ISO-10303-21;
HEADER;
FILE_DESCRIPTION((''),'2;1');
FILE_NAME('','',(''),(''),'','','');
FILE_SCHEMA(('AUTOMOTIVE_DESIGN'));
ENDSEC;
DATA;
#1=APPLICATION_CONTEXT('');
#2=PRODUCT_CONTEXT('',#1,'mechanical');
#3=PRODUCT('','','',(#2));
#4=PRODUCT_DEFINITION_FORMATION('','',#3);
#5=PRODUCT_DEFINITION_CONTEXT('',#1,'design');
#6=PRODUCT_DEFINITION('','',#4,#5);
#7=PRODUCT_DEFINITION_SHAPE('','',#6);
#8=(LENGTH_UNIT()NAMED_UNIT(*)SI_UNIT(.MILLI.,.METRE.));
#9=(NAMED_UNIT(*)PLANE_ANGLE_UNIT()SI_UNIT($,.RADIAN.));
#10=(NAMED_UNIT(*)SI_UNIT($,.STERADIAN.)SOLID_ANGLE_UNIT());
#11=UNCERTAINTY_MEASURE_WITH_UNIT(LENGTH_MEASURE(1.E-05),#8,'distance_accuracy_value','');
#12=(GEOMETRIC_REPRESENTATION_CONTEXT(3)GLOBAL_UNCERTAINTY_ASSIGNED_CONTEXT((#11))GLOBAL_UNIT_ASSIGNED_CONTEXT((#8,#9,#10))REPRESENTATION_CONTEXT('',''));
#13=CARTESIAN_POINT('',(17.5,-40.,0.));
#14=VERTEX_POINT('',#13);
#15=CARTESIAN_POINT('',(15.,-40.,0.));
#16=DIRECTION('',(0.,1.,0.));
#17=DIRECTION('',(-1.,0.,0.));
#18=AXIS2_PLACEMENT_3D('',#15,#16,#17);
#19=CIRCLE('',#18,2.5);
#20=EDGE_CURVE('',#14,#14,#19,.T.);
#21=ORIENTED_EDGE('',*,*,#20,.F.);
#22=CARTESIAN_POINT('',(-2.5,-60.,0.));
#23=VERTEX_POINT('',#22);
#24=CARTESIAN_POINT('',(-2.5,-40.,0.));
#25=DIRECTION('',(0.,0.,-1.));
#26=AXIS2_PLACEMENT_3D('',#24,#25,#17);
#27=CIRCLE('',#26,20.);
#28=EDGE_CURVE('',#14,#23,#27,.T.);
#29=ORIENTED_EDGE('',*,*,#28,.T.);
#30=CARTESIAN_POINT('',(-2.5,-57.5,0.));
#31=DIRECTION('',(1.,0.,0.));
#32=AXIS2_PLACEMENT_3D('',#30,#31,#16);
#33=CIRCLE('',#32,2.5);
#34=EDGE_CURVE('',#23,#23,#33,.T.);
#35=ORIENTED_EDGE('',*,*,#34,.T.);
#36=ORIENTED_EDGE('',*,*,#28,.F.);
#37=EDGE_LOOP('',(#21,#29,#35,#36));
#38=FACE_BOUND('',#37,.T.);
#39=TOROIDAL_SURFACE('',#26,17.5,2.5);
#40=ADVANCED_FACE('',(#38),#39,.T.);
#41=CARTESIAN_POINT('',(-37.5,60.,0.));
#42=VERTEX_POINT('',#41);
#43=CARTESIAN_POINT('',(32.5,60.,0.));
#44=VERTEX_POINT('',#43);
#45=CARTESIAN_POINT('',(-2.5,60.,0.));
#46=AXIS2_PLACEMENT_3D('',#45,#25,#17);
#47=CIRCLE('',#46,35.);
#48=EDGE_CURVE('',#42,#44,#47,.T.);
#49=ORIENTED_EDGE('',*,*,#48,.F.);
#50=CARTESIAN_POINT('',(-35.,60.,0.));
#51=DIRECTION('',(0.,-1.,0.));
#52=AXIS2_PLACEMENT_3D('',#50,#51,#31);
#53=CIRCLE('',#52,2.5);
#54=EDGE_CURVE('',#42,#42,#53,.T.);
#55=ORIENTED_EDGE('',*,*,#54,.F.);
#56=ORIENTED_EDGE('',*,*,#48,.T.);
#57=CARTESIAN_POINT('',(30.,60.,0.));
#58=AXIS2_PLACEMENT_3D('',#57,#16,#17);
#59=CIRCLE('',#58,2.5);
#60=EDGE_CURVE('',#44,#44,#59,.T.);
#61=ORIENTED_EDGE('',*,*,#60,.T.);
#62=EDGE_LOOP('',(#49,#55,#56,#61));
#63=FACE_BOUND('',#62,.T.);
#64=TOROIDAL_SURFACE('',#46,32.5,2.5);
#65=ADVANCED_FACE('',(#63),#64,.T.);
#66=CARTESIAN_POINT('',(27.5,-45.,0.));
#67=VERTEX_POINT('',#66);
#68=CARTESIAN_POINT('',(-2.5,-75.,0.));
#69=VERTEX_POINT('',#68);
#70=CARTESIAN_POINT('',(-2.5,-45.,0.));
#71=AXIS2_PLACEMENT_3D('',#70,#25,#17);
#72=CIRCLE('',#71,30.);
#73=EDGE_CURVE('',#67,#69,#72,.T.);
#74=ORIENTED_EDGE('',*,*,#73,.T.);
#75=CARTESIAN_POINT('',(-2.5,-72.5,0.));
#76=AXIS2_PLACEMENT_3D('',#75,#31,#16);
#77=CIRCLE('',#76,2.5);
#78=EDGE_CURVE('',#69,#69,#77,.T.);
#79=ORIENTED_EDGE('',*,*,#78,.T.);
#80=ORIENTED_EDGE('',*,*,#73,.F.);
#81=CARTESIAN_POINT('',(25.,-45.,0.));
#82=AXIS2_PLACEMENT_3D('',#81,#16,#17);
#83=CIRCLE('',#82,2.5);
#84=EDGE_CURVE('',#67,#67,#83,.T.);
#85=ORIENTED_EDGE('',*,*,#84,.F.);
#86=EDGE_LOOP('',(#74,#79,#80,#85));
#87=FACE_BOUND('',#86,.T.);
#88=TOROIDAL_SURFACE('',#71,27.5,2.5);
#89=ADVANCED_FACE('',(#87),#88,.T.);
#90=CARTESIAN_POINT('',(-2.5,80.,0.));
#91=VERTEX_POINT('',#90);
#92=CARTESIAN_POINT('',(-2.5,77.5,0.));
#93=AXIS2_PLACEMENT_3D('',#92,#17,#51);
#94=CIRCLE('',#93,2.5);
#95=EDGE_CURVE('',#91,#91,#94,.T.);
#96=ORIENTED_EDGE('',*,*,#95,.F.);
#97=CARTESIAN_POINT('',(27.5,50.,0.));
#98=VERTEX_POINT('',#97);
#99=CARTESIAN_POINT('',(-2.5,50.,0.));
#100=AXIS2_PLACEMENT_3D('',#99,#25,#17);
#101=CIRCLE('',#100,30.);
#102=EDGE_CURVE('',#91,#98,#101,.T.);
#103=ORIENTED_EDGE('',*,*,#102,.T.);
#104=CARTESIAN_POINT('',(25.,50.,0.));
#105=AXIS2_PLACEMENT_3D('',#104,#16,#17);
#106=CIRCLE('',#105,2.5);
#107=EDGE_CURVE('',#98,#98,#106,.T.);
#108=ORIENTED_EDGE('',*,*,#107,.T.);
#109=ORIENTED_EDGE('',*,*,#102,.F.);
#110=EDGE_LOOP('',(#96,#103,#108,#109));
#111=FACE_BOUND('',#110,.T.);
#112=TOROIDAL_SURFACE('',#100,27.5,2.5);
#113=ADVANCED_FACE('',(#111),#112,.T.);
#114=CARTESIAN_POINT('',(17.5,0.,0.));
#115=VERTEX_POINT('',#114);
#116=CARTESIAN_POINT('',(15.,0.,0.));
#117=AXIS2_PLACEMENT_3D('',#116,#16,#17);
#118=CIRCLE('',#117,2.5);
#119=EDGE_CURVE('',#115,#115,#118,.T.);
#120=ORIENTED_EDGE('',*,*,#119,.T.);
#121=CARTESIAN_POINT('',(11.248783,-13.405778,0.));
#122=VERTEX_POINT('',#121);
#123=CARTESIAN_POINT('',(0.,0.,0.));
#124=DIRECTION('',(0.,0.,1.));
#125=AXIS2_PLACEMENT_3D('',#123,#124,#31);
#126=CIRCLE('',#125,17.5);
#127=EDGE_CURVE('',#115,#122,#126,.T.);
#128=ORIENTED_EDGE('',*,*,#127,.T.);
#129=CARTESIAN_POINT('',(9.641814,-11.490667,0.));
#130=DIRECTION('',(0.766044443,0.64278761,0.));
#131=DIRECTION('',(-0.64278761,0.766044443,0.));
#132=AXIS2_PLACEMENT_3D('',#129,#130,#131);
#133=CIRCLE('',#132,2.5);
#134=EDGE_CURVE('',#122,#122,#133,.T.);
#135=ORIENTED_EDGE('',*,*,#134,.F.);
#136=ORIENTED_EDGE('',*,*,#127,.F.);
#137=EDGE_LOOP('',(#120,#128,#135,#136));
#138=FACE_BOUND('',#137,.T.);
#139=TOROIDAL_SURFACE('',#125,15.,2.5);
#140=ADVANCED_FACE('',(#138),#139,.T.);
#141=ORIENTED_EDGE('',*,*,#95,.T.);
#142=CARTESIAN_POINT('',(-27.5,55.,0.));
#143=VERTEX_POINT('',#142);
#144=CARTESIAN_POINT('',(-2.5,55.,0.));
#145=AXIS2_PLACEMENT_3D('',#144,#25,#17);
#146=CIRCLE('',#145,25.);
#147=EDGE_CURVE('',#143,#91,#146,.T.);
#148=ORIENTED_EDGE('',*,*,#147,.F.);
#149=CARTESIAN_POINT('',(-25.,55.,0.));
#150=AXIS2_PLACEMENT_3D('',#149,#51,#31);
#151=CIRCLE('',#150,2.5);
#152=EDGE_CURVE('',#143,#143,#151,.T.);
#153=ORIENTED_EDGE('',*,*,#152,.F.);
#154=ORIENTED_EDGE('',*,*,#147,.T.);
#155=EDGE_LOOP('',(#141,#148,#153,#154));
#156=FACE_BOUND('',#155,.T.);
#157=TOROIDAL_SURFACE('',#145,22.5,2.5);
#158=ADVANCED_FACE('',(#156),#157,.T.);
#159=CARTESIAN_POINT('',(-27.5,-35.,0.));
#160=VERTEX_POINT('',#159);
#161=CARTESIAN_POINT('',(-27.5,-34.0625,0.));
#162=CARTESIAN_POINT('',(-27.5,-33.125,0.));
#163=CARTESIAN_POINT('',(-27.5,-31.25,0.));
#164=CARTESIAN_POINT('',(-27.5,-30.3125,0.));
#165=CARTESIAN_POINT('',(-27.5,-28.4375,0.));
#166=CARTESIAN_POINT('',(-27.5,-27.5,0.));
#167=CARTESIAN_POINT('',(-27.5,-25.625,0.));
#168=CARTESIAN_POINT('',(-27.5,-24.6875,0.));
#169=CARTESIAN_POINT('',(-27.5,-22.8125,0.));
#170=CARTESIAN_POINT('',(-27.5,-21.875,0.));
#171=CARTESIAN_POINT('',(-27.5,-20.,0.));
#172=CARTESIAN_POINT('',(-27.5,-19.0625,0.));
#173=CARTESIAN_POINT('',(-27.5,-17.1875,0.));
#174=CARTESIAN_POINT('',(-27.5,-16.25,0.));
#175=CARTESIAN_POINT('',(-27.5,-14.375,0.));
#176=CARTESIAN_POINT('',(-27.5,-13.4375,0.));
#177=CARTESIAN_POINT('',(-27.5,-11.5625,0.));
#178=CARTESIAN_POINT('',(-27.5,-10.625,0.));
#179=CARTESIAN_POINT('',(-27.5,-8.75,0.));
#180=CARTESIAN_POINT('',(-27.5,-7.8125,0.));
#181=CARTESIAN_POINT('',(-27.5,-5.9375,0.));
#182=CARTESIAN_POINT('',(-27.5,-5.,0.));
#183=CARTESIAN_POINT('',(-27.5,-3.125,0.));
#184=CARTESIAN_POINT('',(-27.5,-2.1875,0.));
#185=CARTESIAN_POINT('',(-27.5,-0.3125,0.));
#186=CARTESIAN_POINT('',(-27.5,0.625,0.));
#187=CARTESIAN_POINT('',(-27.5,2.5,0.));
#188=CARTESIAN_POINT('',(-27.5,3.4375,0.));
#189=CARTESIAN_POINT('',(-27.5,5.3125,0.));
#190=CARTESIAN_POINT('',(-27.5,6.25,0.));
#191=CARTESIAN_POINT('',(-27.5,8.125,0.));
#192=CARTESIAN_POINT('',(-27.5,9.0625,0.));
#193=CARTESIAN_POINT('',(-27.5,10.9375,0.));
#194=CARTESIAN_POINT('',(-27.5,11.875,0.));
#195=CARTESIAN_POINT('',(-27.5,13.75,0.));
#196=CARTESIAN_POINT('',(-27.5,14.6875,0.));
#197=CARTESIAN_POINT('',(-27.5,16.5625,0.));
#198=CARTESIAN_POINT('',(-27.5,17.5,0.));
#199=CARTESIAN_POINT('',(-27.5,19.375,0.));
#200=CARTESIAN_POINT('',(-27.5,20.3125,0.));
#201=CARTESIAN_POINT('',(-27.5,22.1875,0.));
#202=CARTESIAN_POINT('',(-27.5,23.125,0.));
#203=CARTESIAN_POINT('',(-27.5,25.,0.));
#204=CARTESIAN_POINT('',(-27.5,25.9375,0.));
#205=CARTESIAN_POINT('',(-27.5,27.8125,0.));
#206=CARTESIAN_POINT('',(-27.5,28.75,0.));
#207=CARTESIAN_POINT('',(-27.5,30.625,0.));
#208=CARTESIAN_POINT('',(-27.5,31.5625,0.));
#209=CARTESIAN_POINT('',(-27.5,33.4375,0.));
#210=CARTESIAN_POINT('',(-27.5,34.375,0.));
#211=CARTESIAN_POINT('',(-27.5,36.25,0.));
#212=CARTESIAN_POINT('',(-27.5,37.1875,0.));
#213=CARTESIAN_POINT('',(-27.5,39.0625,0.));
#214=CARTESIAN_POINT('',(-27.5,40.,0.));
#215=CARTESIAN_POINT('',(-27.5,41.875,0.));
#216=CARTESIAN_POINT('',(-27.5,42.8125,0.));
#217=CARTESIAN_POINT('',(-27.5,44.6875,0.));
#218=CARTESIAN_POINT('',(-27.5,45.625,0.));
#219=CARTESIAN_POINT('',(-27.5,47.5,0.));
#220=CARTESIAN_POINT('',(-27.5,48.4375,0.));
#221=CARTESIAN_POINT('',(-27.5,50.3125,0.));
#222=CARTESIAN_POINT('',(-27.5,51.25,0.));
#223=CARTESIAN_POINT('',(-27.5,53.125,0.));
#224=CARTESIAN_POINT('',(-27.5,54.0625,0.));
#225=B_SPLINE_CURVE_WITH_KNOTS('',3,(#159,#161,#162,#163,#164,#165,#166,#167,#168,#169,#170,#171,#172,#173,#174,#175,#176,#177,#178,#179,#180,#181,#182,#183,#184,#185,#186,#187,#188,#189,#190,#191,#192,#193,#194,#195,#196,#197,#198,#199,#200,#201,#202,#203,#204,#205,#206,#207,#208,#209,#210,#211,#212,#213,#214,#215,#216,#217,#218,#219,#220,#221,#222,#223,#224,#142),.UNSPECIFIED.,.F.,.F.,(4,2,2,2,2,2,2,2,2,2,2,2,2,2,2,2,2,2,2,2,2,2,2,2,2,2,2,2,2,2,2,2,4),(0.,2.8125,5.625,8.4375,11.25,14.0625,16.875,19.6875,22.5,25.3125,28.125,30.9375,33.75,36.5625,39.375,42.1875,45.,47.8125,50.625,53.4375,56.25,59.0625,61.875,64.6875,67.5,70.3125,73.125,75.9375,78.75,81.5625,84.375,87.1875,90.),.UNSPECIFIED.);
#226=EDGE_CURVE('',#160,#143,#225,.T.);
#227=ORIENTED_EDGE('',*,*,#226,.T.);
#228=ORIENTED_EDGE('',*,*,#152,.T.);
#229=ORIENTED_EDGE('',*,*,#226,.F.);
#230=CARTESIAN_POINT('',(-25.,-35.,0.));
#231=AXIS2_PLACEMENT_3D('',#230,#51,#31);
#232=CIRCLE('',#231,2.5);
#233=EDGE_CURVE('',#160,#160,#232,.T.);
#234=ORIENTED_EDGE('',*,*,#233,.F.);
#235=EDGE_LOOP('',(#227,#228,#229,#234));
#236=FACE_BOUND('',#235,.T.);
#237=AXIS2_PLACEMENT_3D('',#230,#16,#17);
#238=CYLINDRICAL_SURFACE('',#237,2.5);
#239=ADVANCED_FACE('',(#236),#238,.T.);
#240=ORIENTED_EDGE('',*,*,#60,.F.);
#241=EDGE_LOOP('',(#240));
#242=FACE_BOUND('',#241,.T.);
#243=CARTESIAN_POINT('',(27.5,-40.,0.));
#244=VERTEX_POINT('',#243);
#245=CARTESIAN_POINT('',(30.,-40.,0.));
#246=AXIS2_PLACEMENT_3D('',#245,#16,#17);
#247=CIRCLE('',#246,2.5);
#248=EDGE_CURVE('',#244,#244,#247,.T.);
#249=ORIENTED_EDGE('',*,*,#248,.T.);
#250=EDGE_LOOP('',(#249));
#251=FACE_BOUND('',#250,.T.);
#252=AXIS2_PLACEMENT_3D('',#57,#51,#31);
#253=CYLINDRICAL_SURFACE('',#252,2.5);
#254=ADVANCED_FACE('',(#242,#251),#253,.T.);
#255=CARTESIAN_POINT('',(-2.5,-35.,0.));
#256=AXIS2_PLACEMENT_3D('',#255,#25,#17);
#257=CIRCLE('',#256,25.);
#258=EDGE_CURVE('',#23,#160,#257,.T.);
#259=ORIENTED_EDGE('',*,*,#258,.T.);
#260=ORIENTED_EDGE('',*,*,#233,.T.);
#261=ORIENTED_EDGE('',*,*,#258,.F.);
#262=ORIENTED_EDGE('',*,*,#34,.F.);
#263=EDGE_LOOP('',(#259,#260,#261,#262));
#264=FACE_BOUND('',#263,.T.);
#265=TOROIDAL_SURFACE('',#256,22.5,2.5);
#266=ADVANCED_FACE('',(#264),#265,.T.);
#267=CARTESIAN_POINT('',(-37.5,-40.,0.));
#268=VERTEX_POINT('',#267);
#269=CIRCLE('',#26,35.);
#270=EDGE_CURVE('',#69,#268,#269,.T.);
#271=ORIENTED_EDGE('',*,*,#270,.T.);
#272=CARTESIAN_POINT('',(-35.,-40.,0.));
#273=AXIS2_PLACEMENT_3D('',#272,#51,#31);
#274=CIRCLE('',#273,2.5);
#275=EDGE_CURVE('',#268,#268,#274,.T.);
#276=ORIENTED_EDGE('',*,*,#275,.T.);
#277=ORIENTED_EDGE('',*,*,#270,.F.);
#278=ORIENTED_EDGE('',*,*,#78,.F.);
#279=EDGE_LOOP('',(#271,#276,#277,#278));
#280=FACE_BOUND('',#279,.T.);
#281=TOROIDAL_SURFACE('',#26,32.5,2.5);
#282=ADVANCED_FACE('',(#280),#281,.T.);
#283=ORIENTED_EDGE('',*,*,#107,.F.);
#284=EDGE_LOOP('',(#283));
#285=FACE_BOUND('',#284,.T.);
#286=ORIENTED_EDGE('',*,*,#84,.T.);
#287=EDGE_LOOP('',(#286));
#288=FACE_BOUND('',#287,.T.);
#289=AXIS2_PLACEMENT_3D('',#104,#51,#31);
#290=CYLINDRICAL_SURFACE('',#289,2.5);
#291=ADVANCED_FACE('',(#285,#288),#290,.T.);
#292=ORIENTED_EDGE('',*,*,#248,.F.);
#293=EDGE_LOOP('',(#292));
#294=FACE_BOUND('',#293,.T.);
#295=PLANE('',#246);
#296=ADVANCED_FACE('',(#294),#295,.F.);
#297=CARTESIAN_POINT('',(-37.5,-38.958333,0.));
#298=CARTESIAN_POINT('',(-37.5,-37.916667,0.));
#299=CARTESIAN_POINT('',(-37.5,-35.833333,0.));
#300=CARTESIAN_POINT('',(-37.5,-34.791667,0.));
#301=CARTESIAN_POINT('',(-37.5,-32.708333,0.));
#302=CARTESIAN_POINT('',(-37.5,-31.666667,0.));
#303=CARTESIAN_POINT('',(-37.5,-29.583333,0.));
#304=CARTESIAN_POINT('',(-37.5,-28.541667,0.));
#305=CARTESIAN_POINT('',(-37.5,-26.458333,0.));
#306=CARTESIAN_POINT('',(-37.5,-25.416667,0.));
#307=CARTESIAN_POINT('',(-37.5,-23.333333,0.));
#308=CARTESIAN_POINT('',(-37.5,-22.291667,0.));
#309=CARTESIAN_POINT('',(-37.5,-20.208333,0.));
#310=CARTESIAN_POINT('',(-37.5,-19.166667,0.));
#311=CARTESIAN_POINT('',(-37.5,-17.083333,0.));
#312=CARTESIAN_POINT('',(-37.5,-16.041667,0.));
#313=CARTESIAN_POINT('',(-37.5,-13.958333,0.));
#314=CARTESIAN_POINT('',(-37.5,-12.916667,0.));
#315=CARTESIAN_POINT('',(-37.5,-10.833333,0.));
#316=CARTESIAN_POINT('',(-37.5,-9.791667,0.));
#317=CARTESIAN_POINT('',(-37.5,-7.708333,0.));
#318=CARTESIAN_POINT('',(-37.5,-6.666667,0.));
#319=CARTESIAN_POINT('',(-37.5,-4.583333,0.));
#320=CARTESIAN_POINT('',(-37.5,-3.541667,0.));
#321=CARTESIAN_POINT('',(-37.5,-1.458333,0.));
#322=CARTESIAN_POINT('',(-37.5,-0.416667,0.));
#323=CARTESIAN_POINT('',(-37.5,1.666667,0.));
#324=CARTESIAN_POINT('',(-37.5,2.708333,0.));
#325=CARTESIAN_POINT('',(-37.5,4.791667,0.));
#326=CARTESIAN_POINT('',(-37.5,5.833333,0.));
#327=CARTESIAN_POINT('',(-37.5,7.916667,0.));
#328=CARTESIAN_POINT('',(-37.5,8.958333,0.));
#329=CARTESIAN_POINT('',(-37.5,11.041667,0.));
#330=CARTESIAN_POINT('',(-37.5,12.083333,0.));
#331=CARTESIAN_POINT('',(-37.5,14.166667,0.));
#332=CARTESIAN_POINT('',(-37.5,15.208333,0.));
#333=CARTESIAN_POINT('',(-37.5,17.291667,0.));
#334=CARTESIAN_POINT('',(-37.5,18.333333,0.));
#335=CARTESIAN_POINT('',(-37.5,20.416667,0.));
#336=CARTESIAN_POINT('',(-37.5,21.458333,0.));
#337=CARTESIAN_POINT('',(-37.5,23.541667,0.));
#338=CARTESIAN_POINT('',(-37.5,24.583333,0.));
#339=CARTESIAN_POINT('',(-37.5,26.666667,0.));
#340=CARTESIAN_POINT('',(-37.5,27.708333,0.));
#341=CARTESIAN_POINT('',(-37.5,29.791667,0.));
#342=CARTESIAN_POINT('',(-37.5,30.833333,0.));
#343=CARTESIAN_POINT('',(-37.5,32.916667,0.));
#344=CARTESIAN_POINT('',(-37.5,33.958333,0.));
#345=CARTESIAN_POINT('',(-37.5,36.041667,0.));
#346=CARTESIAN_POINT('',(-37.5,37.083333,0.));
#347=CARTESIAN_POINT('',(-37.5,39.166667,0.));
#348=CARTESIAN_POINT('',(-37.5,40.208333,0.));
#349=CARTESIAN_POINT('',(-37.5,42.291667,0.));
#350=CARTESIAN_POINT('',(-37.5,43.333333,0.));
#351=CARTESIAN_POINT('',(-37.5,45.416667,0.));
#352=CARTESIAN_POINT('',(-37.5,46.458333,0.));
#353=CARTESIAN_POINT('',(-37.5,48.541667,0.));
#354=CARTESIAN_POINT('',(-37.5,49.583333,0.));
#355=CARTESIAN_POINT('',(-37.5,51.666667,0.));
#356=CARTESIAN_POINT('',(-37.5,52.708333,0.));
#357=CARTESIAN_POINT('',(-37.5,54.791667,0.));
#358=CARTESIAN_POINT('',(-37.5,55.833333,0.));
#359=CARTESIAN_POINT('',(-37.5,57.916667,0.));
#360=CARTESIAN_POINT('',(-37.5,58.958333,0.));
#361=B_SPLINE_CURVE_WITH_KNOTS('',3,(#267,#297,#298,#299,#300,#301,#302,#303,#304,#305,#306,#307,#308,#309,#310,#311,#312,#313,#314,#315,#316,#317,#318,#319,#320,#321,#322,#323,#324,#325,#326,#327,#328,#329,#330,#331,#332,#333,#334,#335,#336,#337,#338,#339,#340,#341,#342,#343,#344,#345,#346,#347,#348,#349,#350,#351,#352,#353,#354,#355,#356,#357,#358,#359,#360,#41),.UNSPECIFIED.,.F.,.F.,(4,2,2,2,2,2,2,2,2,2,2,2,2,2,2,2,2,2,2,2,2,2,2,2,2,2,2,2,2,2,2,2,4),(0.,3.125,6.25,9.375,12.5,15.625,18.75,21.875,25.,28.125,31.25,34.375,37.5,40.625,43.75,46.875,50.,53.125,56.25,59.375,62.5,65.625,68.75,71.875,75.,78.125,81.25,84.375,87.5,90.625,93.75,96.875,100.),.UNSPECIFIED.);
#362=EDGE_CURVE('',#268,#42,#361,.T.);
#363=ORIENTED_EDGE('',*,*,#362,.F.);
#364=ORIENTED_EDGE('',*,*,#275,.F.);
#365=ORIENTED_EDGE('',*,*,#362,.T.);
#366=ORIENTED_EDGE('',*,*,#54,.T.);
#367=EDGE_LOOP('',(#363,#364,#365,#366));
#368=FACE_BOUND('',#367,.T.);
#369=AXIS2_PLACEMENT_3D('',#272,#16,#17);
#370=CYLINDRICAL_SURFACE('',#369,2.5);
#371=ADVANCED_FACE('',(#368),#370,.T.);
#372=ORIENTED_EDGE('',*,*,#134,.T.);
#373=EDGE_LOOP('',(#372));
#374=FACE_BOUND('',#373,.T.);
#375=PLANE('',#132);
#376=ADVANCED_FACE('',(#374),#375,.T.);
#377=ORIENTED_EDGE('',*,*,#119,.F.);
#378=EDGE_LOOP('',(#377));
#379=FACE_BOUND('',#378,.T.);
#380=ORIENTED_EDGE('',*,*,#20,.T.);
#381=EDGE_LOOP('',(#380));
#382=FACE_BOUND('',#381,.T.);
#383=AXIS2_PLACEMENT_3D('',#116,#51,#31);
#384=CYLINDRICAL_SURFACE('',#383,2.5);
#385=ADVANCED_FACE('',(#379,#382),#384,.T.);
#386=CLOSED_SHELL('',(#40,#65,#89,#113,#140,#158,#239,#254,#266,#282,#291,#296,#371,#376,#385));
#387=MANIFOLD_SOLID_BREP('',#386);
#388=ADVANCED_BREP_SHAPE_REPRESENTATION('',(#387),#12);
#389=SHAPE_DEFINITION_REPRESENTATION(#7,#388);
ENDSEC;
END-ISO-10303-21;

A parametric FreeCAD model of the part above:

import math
import FreeCAD as App
import Part
import Sketcher

V = App.Vector

doc = App.newDocument("Part")
params = doc.addObject("Spreadsheet::Sheet", "Params")
for row, (alias, value) in enumerate([
    ("sketch1_diameter", "5 mm"),
    ("sketch2_radius", "15 mm"),
    ("sketch2_radius2", "32.5 mm"),
    ("sketch2_radius3", "27.5 mm"),
    ("sketch2_radius4", "22.5 mm"),
    ("sketch2_radius5", "17.5 mm"),
], start=1):
    params.set(f"A{row}", alias)
    params.set(f"B{row}", "=" + value)
    params.setAlias(f"B{row}", alias)

body = doc.addObject("PartDesign::Body", "Body")

sketch1 = body.newObject("Sketcher::SketchObject", "Sketch")
sketch1.Placement = App.Placement(V(9.641814, -11.490667, 0), App.Rotation(V(0, 0, -1), V(-0.64278761, 0.766044443, 0), V(0.766044443, 0.64278761, 0), "ZXY"))
sketch1.addGeometry(Part.Circle(V(0, 0, 0), V(0, 0, 1), 2.5), False)
sketch1.addConstraint(Sketcher.Constraint("Coincident", 0, 3, -1, 1))
sketch1.addConstraint(Sketcher.Constraint("Diameter", 0, 5.0))
sketch1.setExpression("Constraints[1]", "Params.sketch1_diameter")

sketch2 = body.newObject("Sketcher::SketchObject", "Sketch001")
sketch2.AttachmentSupport = (doc.getObject("XY_Plane"), [""])
sketch2.MapMode = "FlatFace"
sketch2.addGeometry(Part.LineSegment(V(30, -40, 0), V(30, 60, 0)), False)
sketch2.addGeometry(Part.ArcOfCircle(Part.Circle(V(-2, 60, 0), V(0, 0, 1), 32), math.radians(0), math.radians(180)), False)
sketch2.addGeometry(Part.LineSegment(V(-35, 60, 0), V(-35, -40, 0)), False)
sketch2.addGeometry(Part.ArcOfCircle(Part.Circle(V(-3, -40, 0), V(0, 0, 1), 32), math.radians(180), math.radians(270)), False)
sketch2.addGeometry(Part.ArcOfCircle(Part.Circle(V(-2, -45, 0), V(0, 0, 1), 27), math.radians(-90), math.radians(0)), False)
sketch2.addGeometry(Part.LineSegment(V(25, -45, 0), V(25, 50, 0)), False)
sketch2.addGeometry(Part.ArcOfCircle(Part.Circle(V(-2, 50, 0), V(0, 0, 1), 27), math.radians(0), math.radians(90)), False)
sketch2.addGeometry(Part.ArcOfCircle(Part.Circle(V(-3, 55, 0), V(0, 0, 1), 22), math.radians(90), math.radians(180)), False)
sketch2.addGeometry(Part.LineSegment(V(-25, 55, 0), V(-25, -35, 0)), False)
sketch2.addGeometry(Part.ArcOfCircle(Part.Circle(V(-3, -35, 0), V(0, 0, 1), 22), math.radians(180), math.radians(270)), False)
sketch2.addGeometry(Part.ArcOfCircle(Part.Circle(V(-2, -40, 0), V(0, 0, 1), 17), math.radians(-90), math.radians(0)), False)
sketch2.addGeometry(Part.LineSegment(V(15, -40, 0), V(15, 0, 0)), False)
sketch2.addGeometry(Part.ArcOfCircle(Part.Circle(V(0, 0, 0), V(0, 0, 1), 15), math.radians(0), math.radians(310)), False)
sketch2.addConstraint(Sketcher.Constraint("Tangent", 0, 2, 1, 1))
sketch2.addConstraint(Sketcher.Constraint("Tangent", 1, 2, 2, 1))
sketch2.addConstraint(Sketcher.Constraint("Tangent", 2, 2, 3, 1))
sketch2.addConstraint(Sketcher.Constraint("Tangent", 3, 2, 4, 1))
sketch2.addConstraint(Sketcher.Constraint("Tangent", 4, 2, 5, 1))
sketch2.addConstraint(Sketcher.Constraint("Tangent", 5, 2, 6, 1))
sketch2.addConstraint(Sketcher.Constraint("Tangent", 6, 2, 7, 1))
sketch2.addConstraint(Sketcher.Constraint("Tangent", 7, 2, 8, 1))
sketch2.addConstraint(Sketcher.Constraint("Tangent", 8, 2, 9, 1))
sketch2.addConstraint(Sketcher.Constraint("Tangent", 9, 2, 10, 1))
sketch2.addConstraint(Sketcher.Constraint("Tangent", 10, 2, 11, 1))
sketch2.addConstraint(Sketcher.Constraint("Tangent", 11, 2, 12, 1))
sketch2.addConstraint(Sketcher.Constraint("Vertical", 0))
sketch2.addConstraint(Sketcher.Constraint("Vertical", 2))
sketch2.addConstraint(Sketcher.Constraint("Vertical", 5))
sketch2.addConstraint(Sketcher.Constraint("Vertical", 8))
sketch2.addConstraint(Sketcher.Constraint("Vertical", 11))
sketch2.addConstraint(Sketcher.Constraint("Coincident", 12, 3, -1, 1))
sketch2.addConstraint(Sketcher.Constraint("Coincident", 10, 3, 3, 3))
sketch2.addConstraint(Sketcher.Constraint("Equal", 1, 3))
sketch2.addConstraint(Sketcher.Constraint("Equal", 4, 6))
sketch2.addConstraint(Sketcher.Constraint("Equal", 7, 9))
sketch2.addConstraint(Sketcher.Constraint("Horizontal", 10, 3, 0, 1))
sketch2.addConstraint(Sketcher.Constraint("Vertical", 3, 3, 4, 3))
sketch2.addConstraint(Sketcher.Constraint("Vertical", 6, 3, 7, 3))
sketch2.addConstraint(Sketcher.Constraint("Radius", 12, 15.0))
sketch2.addConstraint(Sketcher.Constraint("Radius", 1, 32.5))
sketch2.addConstraint(Sketcher.Constraint("Radius", 4, 27.5))
sketch2.addConstraint(Sketcher.Constraint("Radius", 7, 22.5))
sketch2.addConstraint(Sketcher.Constraint("Radius", 10, 17.5))
sketch2.addConstraint(Sketcher.Constraint("DistanceY", 0, 1, 0, 2, 100.0))
sketch2.addConstraint(Sketcher.Constraint("DistanceY", 5, 1, 5, 2, 95.0))
sketch2.addConstraint(Sketcher.Constraint("DistanceY", 11, 1, 11, 2, 40.0))
sketch2.addConstraint(Sketcher.Constraint("DistanceX", -1, 1, 12, 2, 9.641814))
sketch2.setExpression("Constraints[25]", "Params.sketch2_radius")
sketch2.setExpression("Constraints[26]", "Params.sketch2_radius2")
sketch2.setExpression("Constraints[27]", "Params.sketch2_radius3")
sketch2.setExpression("Constraints[28]", "Params.sketch2_radius4")
sketch2.setExpression("Constraints[29]", "Params.sketch2_radius5")
doc.recompute()

additivepipe = body.newObject("PartDesign::AdditivePipe", "AdditivePipe")
additivepipe.Profile = sketch1
additivepipe.Spine = (sketch2, ["Edge1", "Edge2", "Edge3", "Edge4", "Edge5", "Edge6", "Edge7", "Edge8", "Edge9", "Edge10", "Edge11", "Edge12", "Edge13"])

doc.recompute()
